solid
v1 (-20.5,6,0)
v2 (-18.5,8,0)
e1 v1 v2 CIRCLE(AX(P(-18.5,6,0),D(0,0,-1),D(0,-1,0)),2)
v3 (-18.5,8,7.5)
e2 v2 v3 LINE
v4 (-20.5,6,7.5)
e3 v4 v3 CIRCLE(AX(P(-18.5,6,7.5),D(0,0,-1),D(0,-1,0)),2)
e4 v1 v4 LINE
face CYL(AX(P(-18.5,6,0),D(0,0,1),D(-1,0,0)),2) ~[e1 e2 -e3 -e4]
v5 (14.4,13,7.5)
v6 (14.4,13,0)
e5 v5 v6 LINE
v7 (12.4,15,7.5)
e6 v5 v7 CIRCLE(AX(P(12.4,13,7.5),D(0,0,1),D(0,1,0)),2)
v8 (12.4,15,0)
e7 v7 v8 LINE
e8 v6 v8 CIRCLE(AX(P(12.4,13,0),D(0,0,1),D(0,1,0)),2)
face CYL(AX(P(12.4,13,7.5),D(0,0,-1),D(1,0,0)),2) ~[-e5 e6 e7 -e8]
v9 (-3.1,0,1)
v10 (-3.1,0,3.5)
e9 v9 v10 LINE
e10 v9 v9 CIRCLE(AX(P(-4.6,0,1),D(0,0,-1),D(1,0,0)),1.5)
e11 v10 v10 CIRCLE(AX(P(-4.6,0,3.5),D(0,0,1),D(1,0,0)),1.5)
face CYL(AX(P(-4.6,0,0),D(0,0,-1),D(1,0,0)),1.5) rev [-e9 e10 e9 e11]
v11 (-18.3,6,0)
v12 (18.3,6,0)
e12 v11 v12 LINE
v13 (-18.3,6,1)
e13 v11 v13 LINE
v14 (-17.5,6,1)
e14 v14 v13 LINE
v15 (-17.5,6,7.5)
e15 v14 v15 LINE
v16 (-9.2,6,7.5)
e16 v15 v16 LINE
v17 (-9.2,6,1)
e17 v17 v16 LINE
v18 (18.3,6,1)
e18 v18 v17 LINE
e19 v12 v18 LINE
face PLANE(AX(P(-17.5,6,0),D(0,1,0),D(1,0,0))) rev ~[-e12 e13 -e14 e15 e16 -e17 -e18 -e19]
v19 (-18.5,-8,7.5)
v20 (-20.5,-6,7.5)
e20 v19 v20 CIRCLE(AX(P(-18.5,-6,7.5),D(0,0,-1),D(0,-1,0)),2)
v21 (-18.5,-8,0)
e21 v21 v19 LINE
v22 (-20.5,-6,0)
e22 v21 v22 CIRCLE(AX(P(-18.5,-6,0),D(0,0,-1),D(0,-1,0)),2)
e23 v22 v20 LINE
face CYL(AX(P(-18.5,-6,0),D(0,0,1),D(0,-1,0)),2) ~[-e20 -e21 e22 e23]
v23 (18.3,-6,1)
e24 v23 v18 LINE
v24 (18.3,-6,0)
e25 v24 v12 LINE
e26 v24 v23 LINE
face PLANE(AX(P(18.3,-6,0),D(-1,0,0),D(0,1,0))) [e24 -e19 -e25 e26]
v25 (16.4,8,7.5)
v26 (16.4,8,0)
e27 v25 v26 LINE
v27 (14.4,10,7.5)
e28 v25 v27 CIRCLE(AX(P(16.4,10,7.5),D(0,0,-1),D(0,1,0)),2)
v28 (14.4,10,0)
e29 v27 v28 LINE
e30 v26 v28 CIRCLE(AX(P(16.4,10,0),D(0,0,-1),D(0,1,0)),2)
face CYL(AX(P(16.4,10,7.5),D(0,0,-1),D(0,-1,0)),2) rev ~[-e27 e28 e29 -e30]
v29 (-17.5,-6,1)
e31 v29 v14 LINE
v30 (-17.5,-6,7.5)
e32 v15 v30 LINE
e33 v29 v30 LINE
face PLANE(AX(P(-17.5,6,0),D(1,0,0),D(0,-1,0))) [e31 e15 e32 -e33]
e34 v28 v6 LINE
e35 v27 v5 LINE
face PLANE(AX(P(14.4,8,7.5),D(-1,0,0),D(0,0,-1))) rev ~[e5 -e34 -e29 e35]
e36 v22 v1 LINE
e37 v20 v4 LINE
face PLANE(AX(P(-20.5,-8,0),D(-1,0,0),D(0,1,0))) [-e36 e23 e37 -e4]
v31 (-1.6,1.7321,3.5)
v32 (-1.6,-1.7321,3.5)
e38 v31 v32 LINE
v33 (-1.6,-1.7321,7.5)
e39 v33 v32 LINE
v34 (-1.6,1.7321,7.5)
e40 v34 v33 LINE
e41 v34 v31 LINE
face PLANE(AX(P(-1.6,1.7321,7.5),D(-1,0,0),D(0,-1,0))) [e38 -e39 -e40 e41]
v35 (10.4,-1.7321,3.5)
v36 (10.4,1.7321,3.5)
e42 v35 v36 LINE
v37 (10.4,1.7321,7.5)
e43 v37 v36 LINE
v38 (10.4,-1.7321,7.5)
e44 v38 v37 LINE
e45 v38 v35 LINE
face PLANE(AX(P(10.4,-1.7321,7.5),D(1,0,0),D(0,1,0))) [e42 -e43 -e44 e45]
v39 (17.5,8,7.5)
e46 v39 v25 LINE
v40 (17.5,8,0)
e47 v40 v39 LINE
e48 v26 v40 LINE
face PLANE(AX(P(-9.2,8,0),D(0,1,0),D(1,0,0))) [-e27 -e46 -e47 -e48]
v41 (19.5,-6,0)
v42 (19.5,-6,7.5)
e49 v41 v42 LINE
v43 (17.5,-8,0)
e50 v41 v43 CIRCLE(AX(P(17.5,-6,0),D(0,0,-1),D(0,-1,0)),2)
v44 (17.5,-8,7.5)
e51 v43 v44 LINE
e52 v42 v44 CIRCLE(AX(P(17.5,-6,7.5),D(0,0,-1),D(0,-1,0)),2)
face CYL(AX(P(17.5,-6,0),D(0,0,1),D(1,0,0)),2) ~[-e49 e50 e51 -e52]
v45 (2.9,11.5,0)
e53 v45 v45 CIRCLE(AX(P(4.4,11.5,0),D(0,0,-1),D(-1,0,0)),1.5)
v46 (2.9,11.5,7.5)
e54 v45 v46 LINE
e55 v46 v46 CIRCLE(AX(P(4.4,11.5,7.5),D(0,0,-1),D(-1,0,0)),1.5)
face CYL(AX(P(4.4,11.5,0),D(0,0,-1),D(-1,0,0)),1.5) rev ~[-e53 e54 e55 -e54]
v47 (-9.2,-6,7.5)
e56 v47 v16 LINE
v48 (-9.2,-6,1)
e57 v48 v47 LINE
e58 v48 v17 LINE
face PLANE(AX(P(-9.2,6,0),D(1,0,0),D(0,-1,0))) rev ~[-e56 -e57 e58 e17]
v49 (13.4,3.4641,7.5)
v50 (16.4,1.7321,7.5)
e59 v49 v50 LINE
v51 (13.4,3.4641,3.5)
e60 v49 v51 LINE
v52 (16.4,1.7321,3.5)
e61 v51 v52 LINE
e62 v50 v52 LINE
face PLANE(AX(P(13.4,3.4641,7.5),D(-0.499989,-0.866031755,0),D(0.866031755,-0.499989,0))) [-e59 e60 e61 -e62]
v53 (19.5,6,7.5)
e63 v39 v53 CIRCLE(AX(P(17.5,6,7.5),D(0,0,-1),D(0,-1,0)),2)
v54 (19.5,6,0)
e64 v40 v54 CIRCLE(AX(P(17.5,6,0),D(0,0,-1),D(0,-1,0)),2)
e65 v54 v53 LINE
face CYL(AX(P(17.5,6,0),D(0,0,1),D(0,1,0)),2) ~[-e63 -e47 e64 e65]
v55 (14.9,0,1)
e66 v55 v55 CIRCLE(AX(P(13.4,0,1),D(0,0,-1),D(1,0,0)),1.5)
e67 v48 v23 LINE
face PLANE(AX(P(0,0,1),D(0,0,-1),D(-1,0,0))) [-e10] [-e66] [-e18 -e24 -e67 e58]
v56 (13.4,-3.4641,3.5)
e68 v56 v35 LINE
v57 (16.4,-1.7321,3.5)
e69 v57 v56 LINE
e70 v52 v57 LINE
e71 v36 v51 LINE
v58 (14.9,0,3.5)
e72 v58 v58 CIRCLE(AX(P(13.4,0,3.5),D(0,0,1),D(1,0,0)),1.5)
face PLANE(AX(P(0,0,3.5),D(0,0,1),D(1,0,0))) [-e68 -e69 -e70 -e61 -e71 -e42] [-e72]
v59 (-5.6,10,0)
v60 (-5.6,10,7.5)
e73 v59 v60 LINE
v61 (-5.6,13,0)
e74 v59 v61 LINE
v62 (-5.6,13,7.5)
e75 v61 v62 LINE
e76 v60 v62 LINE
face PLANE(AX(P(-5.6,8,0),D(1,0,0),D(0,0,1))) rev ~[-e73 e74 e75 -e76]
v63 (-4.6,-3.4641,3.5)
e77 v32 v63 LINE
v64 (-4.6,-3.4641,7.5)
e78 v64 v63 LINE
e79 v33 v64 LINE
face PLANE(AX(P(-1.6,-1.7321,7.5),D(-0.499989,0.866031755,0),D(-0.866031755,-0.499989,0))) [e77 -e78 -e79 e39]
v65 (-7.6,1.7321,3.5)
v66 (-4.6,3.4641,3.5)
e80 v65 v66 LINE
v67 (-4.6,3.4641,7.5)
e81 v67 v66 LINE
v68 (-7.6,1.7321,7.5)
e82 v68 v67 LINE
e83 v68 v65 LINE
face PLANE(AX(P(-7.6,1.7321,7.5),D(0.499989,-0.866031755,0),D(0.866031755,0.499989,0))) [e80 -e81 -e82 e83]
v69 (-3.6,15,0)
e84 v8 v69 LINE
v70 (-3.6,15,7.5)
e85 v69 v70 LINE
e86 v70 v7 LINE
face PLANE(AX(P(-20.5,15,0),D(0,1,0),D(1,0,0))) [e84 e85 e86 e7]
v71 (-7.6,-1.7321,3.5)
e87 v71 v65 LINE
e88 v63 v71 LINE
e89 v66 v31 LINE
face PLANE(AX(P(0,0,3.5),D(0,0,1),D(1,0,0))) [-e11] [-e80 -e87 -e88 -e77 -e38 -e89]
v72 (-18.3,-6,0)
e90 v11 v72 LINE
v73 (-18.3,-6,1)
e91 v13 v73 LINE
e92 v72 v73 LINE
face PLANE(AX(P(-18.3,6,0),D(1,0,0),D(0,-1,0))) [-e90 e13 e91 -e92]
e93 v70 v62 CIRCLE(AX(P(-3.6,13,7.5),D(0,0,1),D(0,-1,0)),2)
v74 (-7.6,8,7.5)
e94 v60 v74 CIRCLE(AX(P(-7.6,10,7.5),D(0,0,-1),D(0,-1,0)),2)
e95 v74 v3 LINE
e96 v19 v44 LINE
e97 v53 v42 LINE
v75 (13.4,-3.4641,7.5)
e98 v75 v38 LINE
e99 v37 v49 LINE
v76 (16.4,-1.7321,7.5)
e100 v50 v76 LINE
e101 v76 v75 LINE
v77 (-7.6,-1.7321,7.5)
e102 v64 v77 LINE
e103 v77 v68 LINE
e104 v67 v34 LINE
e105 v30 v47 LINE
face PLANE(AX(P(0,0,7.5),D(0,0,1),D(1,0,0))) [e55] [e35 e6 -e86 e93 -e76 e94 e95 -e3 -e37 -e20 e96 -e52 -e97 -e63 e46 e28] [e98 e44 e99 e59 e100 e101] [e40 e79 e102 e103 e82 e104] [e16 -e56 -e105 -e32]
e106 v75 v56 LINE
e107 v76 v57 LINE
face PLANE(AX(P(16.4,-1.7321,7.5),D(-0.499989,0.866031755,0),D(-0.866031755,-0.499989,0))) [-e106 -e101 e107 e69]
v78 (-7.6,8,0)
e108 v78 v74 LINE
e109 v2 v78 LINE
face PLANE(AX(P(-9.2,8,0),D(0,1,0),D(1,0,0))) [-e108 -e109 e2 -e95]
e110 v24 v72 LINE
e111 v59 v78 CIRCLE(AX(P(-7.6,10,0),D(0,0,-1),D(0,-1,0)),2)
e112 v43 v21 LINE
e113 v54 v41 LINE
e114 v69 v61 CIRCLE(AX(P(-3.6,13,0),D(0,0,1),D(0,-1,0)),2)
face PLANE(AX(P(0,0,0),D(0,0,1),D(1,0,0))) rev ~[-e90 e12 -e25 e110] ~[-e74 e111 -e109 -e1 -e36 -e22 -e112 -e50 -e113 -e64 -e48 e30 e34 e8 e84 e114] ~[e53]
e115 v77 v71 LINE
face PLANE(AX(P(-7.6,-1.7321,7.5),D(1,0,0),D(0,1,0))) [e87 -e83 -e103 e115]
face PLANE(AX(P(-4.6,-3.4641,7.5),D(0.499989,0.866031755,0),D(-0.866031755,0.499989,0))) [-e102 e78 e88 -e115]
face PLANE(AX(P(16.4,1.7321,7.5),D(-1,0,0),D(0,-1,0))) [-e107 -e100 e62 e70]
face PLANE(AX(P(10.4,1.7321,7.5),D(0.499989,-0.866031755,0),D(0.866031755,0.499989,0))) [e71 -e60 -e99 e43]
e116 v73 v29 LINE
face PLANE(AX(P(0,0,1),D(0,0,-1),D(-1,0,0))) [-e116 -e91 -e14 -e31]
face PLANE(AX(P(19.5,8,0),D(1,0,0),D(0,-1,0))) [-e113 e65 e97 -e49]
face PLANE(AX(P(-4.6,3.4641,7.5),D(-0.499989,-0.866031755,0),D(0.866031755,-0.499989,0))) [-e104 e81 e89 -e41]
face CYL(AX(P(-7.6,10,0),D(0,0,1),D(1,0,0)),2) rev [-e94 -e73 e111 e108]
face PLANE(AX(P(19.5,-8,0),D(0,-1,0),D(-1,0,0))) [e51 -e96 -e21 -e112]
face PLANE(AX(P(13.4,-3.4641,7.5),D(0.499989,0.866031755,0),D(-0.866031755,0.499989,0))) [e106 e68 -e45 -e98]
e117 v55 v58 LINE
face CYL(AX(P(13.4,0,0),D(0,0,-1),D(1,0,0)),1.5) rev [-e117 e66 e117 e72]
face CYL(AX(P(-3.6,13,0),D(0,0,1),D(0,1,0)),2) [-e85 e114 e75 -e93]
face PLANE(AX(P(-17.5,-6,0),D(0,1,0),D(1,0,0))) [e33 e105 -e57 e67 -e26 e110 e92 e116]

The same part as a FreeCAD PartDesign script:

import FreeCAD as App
import Part
import Sketcher
from FreeCAD import Vector
Q = App.Units.Quantity


def edges_at(feature, points):
    """Names of the edges that pass closest to the given points."""
    edges = feature.Shape.Edges
    near = lambda p: min(range(len(edges)), key=lambda i: edges[i].distToShape(Part.Vertex(*p))[0])
    return sorted({f"Edge{near(p) + 1}" for p in points})


def add_polygon(sketch, points):
    """Adds a closed chain of lines whose ends are joined by coincident constraints."""
    first, n = sketch.GeometryCount, len(points)
    for a, b in zip(points, points[1:] + points[:1]):
        sketch.addGeometry(Part.LineSegment(App.Vector(*a, 0), App.Vector(*b, 0)), False)
    for i in range(n):
        sketch.addConstraint(Sketcher.Constraint("Coincident", first + i, 2, first + (i + 1) % n, 1))

doc = App.newDocument("Part")
body = doc.addObject("PartDesign::Body", "Body")

# Sketch on XY plane
sketch1 = doc.addObject("Sketcher::SketchObject", "Sketch")
body.addObject(sketch1)
sketch1.AttachmentSupport = (doc.XY_Plane, [""])
sketch1.MapMode = "FlatFace"
add_polygon(sketch1, [(19.5, 8), (-20.5, 8), (-20.5, -8), (19.5, -8)])  # lines 0-3
add_polygon(sketch1, [(-9.2, 6), (-9.2, -6), (-17.5, -6), (-17.5, 6)])  # lines 4-7
sketch1.addGeometry(Part.Circle(Vector(-4.6, 0, 0), Vector(0, 0, 1), 1.5), False)  # 8
sketch1.addGeometry(Part.Circle(Vector(13.4, 0, 0), Vector(0, 0, 1), 1.5), False)  # 9
sketch1.addConstraint([
    Sketcher.Constraint("Horizontal", 0),
    Sketcher.Constraint("Vertical", 1),
    Sketcher.Constraint("Horizontal", 2),
    Sketcher.Constraint("Vertical", 3),
    Sketcher.Constraint("Vertical", 4),
    Sketcher.Constraint("Horizontal", 5),
    Sketcher.Constraint("Vertical", 6),
    Sketcher.Constraint("Horizontal", 7),
    Sketcher.Constraint("Equal", 8, 9),
    Sketcher.Constraint("PointOnObject", 8, 3, -1),
    Sketcher.Constraint("PointOnObject", 9, 3, -1),
    Sketcher.Constraint("Diameter", 8, Q("3 mm")),
    Sketcher.Constraint("DistanceX", 1, 2, 5, 2, Q("3 mm")),
    Sketcher.Constraint("DistanceX", 0, 2, 0, 1, Q("40 mm")),
    Sketcher.Constraint("DistanceY", 1, 2, 1, 1, Q("16 mm")),
    Sketcher.Constraint("DistanceY", 4, 2, 4, 1, Q("12 mm")),
    Sketcher.Constraint("DistanceX", 5, 2, 5, 1, Q("8.3 mm")),
    Sketcher.Constraint("DistanceY", -1, 1, 0, 2, Q("8 mm")),
    Sketcher.Constraint("DistanceY", 4, 2, -1, 1, Q("6 mm")),
    Sketcher.Constraint("DistanceX", 8, 3, 9, 3, Q("18 mm")),
    Sketcher.Constraint("DistanceX", 8, 3, -1, 1, Q("4.6 mm")),
    Sketcher.Constraint("DistanceX", 0, 2, -1, 1, Q("20.5 mm")),
])
pad1 = doc.addObject("PartDesign::Pad", "Pad")
body.addObject(pad1)
pad1.Profile = sketch1
pad1.Length = 7.5

# Sketch on XY plane
sketch2 = doc.addObject("Sketcher::SketchObject", "Sketch001")
body.addObject(sketch2)
sketch2.AttachmentSupport = (doc.XY_Plane, [""])
sketch2.MapMode = "FlatFace"
sketch2.AttachmentOffset = App.Placement(Vector(0, 0, 7.5), App.Rotation())
add_polygon(sketch2, [(-4.6, -3.4641), (-1.6, -1.7321), (-1.6, 1.7321), (-4.6, 3.4641), (-7.6, 1.7321), (-7.6, -1.7321)])  # lines 0-5
sketch2.addGeometry(Part.Circle(Vector(-4.6, 0, 0), Vector(0, 0, 1), 1.5), False)  # 6
add_polygon(sketch2, [(13.4, 3.4641), (10.4, 1.7321), (10.4, -1.7321), (13.4, -3.4641), (16.4, -1.7321), (16.4, 1.7321)])  # lines 7-12
sketch2.addGeometry(Part.Circle(Vector(13.4, 0, 0), Vector(0, 0, 1), 1.5), False)  # 13
sketch2.addConstraint([
    Sketcher.Constraint("Vertical", 1),
    Sketcher.Constraint("Vertical", 4),
    Sketcher.Constraint("Vertical", 8),
    Sketcher.Constraint("Vertical", 11),
    Sketcher.Constraint("Equal", 6, 13),
    Sketcher.Constraint("Symmetric", 2, 2, 5, 2, -1),
    Sketcher.Constraint("Symmetric", 9, 2, 12, 2, -1),
    Sketcher.Constraint("PointOnObject", 6, 3, -1),
    Sketcher.Constraint("PointOnObject", 13, 3, -1),
    Sketcher.Constraint("Parallel", 0, 3),
    Sketcher.Constraint("Parallel", 2, 5),
    Sketcher.Constraint("Parallel", 3, 7),
    Sketcher.Constraint("Parallel", 5, 9),
    Sketcher.Constraint("Parallel", 7, 10),
    Sketcher.Constraint("Parallel", 9, 12),
    Sketcher.Constraint("Horizontal", 1, 2, 3, 2),
    Sketcher.Constraint("Horizontal", 0, 2, 4, 2),
    Sketcher.Constraint("Horizontal", 3, 2, 7, 2),
    Sketcher.Constraint("Horizontal", 5, 2, 9, 2),
    Sketcher.Constraint("Horizontal", 8, 2, 10, 2),
    Sketcher.Constraint("Vertical", 6, 3, 2, 2),
    Sketcher.Constraint("Vertical", 13, 3, 9, 2),
    Sketcher.Constraint("Diameter", 6, Q("3 mm")),
    Sketcher.Constraint("DistanceX", 3, 2, 1, 2, Q("6 mm")),
    Sketcher.Constraint("Angle", 0, Q("29.9993 deg")),
    Sketcher.Constraint("DistanceX", 6, 3, 13, 3, Q("18 mm")),
    Sketcher.Constraint("DistanceX", 6, 3, -1, 1, Q("4.6 mm")),
    Sketcher.Constraint("DistanceY", 1, 1, 1, 2, Q("3.4642 mm")),
])
pocket1 = doc.addObject("PartDesign::Pocket", "Pocket")
body.addObject(pocket1)
pocket1.Profile = sketch2
pocket1.Length = 4

# Sketch on XZ plane
sketch3 = doc.addObject("Sketcher::SketchObject", "Sketch002")
body.addObject(sketch3)
sketch3.AttachmentSupport = (doc.XZ_Plane, [""])
sketch3.MapMode = "FlatFace"
sketch3.AttachmentOffset = App.Placement(Vector(0, 0, -8), App.Rotation())
add_polygon(sketch3, [(14.4, 7.5), (14.4, 0), (-5.6, 0), (-5.6, 7.5)])  # lines 0-3
sketch3.addConstraint([
    Sketcher.Constraint("Vertical", 0),
    Sketcher.Constraint("Horizontal", 1),
    Sketcher.Constraint("Vertical", 2),
    Sketcher.Constraint("Horizontal", 3),
    Sketcher.Constraint("PointOnObject", 0, 2, -1),
    Sketcher.Constraint("DistanceX", 1, 2, 1, 1, Q("20 mm")),
    Sketcher.Constraint("DistanceY", 0, 2, 0, 1, Q("7.5 mm")),
    Sketcher.Constraint("DistanceX", -1, 1, 0, 2, Q("14.4 mm")),
])
pad2 = doc.addObject("PartDesign::Pad", "Pad001")
body.addObject(pad2)
pad2.Profile = sketch3
pad2.Length = 7
pad2.Reversed = True

# Sketch on XY plane
sketch4 = doc.addObject("Sketcher::SketchObject", "Sketch003")
body.addObject(sketch4)
sketch4.AttachmentSupport = (doc.XY_Plane, [""])
sketch4.MapMode = "FlatFace"
sketch4.addGeometry(Part.Circle(Vector(4.4, 11.5, 0), Vector(0, 0, 1), 1.5), False)
sketch4.addConstraint([
    Sketcher.Constraint("Diameter", 0, Q("3 mm")),
    Sketcher.Constraint("DistanceX", -1, 1, 0, 3, Q("4.4 mm")),
    Sketcher.Constraint("DistanceY", -1, 1, 0, 3, Q("11.5 mm")),
])
pocket2 = doc.addObject("PartDesign::Pocket", "Pocket001")
body.addObject(pocket2)
pocket2.Profile = sketch4
pocket2.Type = "ThroughAll"
pocket2.Reversed = True
doc.recompute()

fillet = doc.addObject("PartDesign::Fillet", "Fillet")
body.addObject(fillet)
fillet.Base = (pocket2, edges_at(pocket2, [
    (-5.6, 15, 3.75),
    (-5.6, 8, 3.75),
    (-20.5, 8, 3.75),
    (-20.5, -8, 3.75),
    (19.5, -8, 3.75),
    (19.5, 8, 3.75),
    (14.4, 8, 3.75),
    (14.4, 15, 3.75),
]))
fillet.Radius = 2

# Sketch on XY plane
sketch5 = doc.addObject("Sketcher::SketchObject", "Sketch004")
body.addObject(sketch5)
sketch5.AttachmentSupport = (doc.XY_Plane, [""])
sketch5.MapMode = "FlatFace"
add_polygon(sketch5, [(18.3, -6), (-18.3, -6), (-18.3, 6), (18.3, 6)])  # lines 0-3
sketch5.addConstraint([
    Sketcher.Constraint("Horizontal", 0),
    Sketcher.Constraint("Vertical", 1),
    Sketcher.Constraint("Horizontal", 2),
    Sketcher.Constraint("Vertical", 3),
    Sketcher.Constraint("Symmetric", 0, 2, 2, 2, -1, 1),
    Sketcher.Constraint("DistanceY", 1, 1, 1, 2, Q("12 mm")),
    Sketcher.Constraint("DistanceX", 0, 2, 0, 1, Q("36.6 mm")),
])
pocket3 = doc.addObject("PartDesign::Pocket", "Pocket002")
body.addObject(pocket3)
pocket3.Profile = sketch5
pocket3.Length = 1
pocket3.Reversed = True

doc.recompute()
